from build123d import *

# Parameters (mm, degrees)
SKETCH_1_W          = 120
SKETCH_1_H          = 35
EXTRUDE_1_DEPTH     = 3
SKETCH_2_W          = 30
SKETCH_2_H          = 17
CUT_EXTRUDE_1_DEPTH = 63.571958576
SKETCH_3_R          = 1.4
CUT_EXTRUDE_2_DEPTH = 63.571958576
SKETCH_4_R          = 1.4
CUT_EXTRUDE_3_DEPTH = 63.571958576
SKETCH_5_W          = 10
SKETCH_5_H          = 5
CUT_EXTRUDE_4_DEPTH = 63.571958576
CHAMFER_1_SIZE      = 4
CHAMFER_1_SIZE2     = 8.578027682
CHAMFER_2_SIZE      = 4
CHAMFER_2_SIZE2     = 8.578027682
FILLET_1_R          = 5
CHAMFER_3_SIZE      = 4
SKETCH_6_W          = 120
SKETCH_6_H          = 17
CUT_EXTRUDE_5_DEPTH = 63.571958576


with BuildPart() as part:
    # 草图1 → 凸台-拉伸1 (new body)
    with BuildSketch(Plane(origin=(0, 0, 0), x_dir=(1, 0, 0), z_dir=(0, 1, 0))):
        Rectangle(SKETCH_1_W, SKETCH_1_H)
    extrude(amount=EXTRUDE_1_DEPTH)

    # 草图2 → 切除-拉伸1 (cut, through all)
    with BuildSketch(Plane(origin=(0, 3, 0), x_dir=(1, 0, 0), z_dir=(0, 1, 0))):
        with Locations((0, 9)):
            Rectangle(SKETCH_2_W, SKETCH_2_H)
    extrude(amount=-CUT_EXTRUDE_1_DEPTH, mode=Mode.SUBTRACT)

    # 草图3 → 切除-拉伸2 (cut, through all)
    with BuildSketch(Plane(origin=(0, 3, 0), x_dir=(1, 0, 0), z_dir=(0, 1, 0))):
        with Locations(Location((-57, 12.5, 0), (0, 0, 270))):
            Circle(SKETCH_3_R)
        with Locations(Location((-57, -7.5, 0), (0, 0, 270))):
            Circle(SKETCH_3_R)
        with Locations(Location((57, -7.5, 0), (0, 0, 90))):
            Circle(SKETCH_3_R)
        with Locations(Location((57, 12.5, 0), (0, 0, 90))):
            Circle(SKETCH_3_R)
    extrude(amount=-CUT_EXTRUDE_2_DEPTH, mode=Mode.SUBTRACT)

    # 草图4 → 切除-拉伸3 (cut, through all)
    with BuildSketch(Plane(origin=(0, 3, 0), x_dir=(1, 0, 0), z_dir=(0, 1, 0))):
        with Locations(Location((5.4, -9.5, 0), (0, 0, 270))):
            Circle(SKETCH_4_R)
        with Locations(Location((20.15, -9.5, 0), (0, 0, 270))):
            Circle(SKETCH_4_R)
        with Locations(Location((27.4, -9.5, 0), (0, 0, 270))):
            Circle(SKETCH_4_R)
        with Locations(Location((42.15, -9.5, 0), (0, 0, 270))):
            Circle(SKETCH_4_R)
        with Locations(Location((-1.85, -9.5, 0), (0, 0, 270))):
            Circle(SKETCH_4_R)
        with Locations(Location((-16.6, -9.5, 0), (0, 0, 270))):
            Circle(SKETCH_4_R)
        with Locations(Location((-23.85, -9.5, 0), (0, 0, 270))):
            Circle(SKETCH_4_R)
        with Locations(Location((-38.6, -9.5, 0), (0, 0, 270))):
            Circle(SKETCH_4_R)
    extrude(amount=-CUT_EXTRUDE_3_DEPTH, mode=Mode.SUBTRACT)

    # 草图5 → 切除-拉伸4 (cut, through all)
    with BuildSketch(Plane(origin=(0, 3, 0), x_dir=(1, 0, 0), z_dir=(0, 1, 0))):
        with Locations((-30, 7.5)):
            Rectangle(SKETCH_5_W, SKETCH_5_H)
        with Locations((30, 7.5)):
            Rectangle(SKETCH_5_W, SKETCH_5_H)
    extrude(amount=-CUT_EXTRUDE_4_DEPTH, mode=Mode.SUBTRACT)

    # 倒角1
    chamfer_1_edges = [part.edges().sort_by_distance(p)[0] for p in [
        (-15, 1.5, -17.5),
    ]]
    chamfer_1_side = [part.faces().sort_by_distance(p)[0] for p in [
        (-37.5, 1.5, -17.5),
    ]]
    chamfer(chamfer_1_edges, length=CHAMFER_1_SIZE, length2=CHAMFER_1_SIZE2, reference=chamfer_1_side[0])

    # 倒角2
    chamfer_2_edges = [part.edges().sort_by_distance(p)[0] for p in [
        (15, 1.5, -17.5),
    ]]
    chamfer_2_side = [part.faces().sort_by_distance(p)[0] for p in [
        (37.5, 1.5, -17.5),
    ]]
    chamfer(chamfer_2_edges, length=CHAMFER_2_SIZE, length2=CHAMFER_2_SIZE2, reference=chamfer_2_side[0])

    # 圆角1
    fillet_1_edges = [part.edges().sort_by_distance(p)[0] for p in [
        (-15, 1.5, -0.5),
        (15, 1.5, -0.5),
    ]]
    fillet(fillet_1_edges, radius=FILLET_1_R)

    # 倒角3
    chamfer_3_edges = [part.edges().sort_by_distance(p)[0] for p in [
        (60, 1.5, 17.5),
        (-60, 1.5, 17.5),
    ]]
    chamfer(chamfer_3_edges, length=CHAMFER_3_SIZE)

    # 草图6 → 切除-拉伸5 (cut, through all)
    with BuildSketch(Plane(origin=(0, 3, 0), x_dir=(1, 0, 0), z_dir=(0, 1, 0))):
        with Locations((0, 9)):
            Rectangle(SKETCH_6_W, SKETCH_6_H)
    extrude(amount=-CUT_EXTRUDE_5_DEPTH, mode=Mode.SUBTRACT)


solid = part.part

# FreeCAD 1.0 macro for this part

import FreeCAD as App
import Part
import Sketcher

V = App.Vector
Q = App.Units.Quantity


def edges_at(feature, points):
    """Names of the edges that pass closest to the given points."""
    edges = feature.Shape.Edges
    near = lambda p: min(range(len(edges)), key=lambda i: edges[i].distToShape(Part.Vertex(*p))[0])
    return sorted({f"Edge{near(p) + 1}" for p in points})


def add_polygon(sketch, points):
    """Adds a closed chain of lines whose ends are joined by coincident constraints."""
    first, n = sketch.GeometryCount, len(points)
    for a, b in zip(points, points[1:] + points[:1]):
        sketch.addGeometry(Part.LineSegment(App.Vector(*a, 0), App.Vector(*b, 0)), False)
    for i in range(n):
        sketch.addConstraint(Sketcher.Constraint("Coincident", first + i, 2, first + (i + 1) % n, 1))

doc = App.newDocument("Part")
params = doc.addObject("Spreadsheet::Sheet", "Params")
for row, (alias, value) in enumerate([
    ("sketch1_width", "120 mm"),
    ("sketch1_height", "35 mm"),
    ("pad1_length", "3 mm"),
    ("sketch2_width", "30 mm"),
    ("sketch2_height", "17 mm"),
    ("sketch3_diameter", "2.8 mm"),
    ("sketch4_diameter", "2.8 mm"),
    ("sketch5_width", "10 mm"),
    ("sketch5_height", "5 mm"),
    ("chamfer_size", "4 mm"),
    ("chamfer_size2", "8.578028 mm"),
    ("chamfer2_size", "4 mm"),
    ("chamfer2_size2", "8.578028 mm"),
    ("fillet_radius", "5 mm"),
    ("chamfer3_size", "4 mm"),
    ("sketch6_width", "120 mm"),
    ("sketch6_height", "17 mm"),
], start=1):
    params.set(f"A{row}", alias)
    params.set(f"B{row}", "=" + value)
    params.setAlias(f"B{row}", alias)

body = doc.addObject("PartDesign::Body", "Body")

# Sketch on XZ plane
sketch1 = doc.addObject("Sketcher::SketchObject", "Sketch")
body.addObject(sketch1)
sketch1.AttachmentSupport = (doc.XZ_Plane, [""])
sketch1.MapMode = "FlatFace"
add_polygon(sketch1, [(-60, -17.5), (-60, 17.5), (60, 17.5), (60, -17.5)])  # lines 0-3
sketch1.addConstraint([
    Sketcher.Constraint("Vertical", 0),
    Sketcher.Constraint("Horizontal", 1),
    Sketcher.Constraint("Vertical", 2),
    Sketcher.Constraint("Horizontal", 3),
    Sketcher.Constraint("Symmetric", 0, 2, 2, 2, -1, 1),
    Sketcher.Constraint("DistanceX", 1, 1, 1, 2, Q("120 mm")),
    Sketcher.Constraint("DistanceY", 0, 1, 0, 2, Q("35 mm")),
])
sketch1.setExpression("Constraints[9]", "Params.sketch1_width")
sketch1.setExpression("Constraints[10]", "Params.sketch1_height")
pad1 = doc.addObject("PartDesign::Pad", "Pad")
body.addObject(pad1)
pad1.Profile = sketch1
pad1.setExpression("Length", "Params.pad1_length")
pad1.Reversed = True

# Sketch on XZ plane
sketch2 = doc.addObject("Sketcher::SketchObject", "Sketch001")
body.addObject(sketch2)
sketch2.AttachmentSupport = (doc.XZ_Plane, [""])
sketch2.MapMode = "FlatFace"
sketch2.AttachmentOffset = App.Placement(V(0, 0, -3), App.Rotation())
add_polygon(sketch2, [(-15, -17.5), (-15, -0.5), (15, -0.5), (15, -17.5)])  # lines 0-3
sketch2.addConstraint([
    Sketcher.Constraint("Vertical", 0),
    Sketcher.Constraint("Horizontal", 1),
    Sketcher.Constraint("Vertical", 2),
    Sketcher.Constraint("Horizontal", 3),
    Sketcher.Constraint("DistanceX", 1, 1, 1, 2, Q("30 mm")),
    Sketcher.Constraint("DistanceY", 0, 1, 0, 2, Q("17 mm")),
    Sketcher.Constraint("DistanceX", 0, 2, -1, 1, Q("15 mm")),
    Sketcher.Constraint("DistanceY", 0, 2, -1, 1, Q("0.5 mm")),
])
sketch2.setExpression("Constraints[8]", "Params.sketch2_width")
sketch2.setExpression("Constraints[9]", "Params.sketch2_height")
pocket1 = doc.addObject("PartDesign::Pocket", "Pocket")
body.addObject(pocket1)
pocket1.Profile = sketch2
pocket1.Type = "ThroughAll"
pocket1.Reversed = True

# Sketch on XZ plane
sketch3 = doc.addObject("Sketcher::SketchObject", "Sketch002")
body.addObject(sketch3)
sketch3.AttachmentSupport = (doc.XZ_Plane, [""])
sketch3.MapMode = "FlatFace"
sketch3.AttachmentOffset = App.Placement(V(0, 0, -3), App.Rotation())
sketch3.addGeometry([
    Part.Circle(V(-57, -12.5, 0), V(0, 0, 1), 1.4),
    Part.Circle(V(-57, 7.5, 0), V(0, 0, 1), 1.4),
    Part.Circle(V(57, 7.5, 0), V(0, 0, 1), 1.4),
    Part.Circle(V(57, -12.5, 0), V(0, 0, 1), 1.4),
], False)
sketch3.addConstraint([
    Sketcher.Constraint("Equal", 0, 1),
    Sketcher.Constraint("Equal", 1, 2),
    Sketcher.Constraint("Equal", 2, 3),
    Sketcher.Constraint("Symmetric", 1, 3, 2, 3, -2),
    Sketcher.Constraint("Symmetric", 0, 3, 3, 3, -2),
    Sketcher.Constraint("Vertical", 0, 3, 1, 3),
    Sketcher.Constraint("Diameter", 0, Q("2.8 mm")),
    Sketcher.Constraint("DistanceX", 0, 3, -1, 1, Q("57 mm")),
    Sketcher.Constraint("DistanceY", 0, 3, 1, 3, Q("20 mm")),
    Sketcher.Constraint("DistanceY", 0, 3, -1, 1, Q("12.5 mm")),
])
sketch3.setExpression("Constraints[6]", "Params.sketch3_diameter")
pocket2 = doc.addObject("PartDesign::Pocket", "Pocket001")
body.addObject(pocket2)
pocket2.Profile = sketch3
pocket2.Type = "ThroughAll"
pocket2.Reversed = True

# Sketch on XZ plane
sketch4 = doc.addObject("Sketcher::SketchObject", "Sketch003")
body.addObject(sketch4)
sketch4.AttachmentSupport = (doc.XZ_Plane, [""])
sketch4.MapMode = "FlatFace"
sketch4.AttachmentOffset = App.Placement(V(0, 0, -3), App.Rotation())
sketch4.addGeometry([
    Part.Circle(V(5.4, 9.5, 0), V(0, 0, 1), 1.4),  # 0
    Part.Circle(V(20.15, 9.5, 0), V(0, 0, 1), 1.4),  # 1
    Part.Circle(V(27.4, 9.5, 0), V(0, 0, 1), 1.4),  # 2
    Part.Circle(V(42.15, 9.5, 0), V(0, 0, 1), 1.4),  # 3
    Part.Circle(V(-1.85, 9.5, 0), V(0, 0, 1), 1.4),  # 4
    Part.Circle(V(-16.6, 9.5, 0), V(0, 0, 1), 1.4),  # 5
    Part.Circle(V(-23.85, 9.5, 0), V(0, 0, 1), 1.4),  # 6
    Part.Circle(V(-38.6, 9.5, 0), V(0, 0, 1), 1.4),  # 7
], False)
sketch4.addConstraint([
    Sketcher.Constraint("Equal", 0, 1),
    Sketcher.Constraint("Equal", 1, 2),
    Sketcher.Constraint("Equal", 2, 3),
    Sketcher.Constraint("Equal", 3, 4),
    Sketcher.Constraint("Equal", 4, 5),
    Sketcher.Constraint("Equal", 5, 6),
    Sketcher.Constraint("Equal", 6, 7),
    Sketcher.Constraint("Horizontal", 0, 3, 1, 3),
    Sketcher.Constraint("Horizontal", 1, 3, 2, 3),
    Sketcher.Constraint("Horizontal", 2, 3, 3, 3),
    Sketcher.Constraint("Horizontal", 3, 3, 4, 3),
    Sketcher.Constraint("Horizontal", 4, 3, 5, 3),
    Sketcher.Constraint("Horizontal", 5, 3, 6, 3),
    Sketcher.Constraint("Horizontal", 6, 3, 7, 3),
    Sketcher.Constraint("Diameter", 0, Q("2.8 mm")),
    Sketcher.Constraint("DistanceX", 0, 3, 2, 3, Q("22 mm")),
    Sketcher.Constraint("DistanceX", 1, 3, 3, 3, Q("22 mm")),
    Sketcher.Constraint("DistanceX", 4, 3, 1, 3, Q("22 mm")),
    Sketcher.Constraint("DistanceX", 5, 3, 0, 3, Q("22 mm")),
    Sketcher.Constraint("DistanceX", 6, 3, 4, 3, Q("22 mm")),
    Sketcher.Constraint("DistanceX", 7, 3, 5, 3, Q("22 mm")),
    Sketcher.Constraint("DistanceX", -1, 1, 0, 3, Q("5.4 mm")),
    Sketcher.Constraint("DistanceY", -1, 1, 0, 3, Q("9.5 mm")),
    Sketcher.Constraint("DistanceX", -1, 1, 1, 3, Q("20.15 mm")),
])
sketch4.setExpression("Constraints[14]", "Params.sketch4_diameter")
pocket3 = doc.addObject("PartDesign::Pocket", "Pocket002")
body.addObject(pocket3)
pocket3.Profile = sketch4
pocket3.Type = "ThroughAll"
pocket3.Reversed = True

# Sketch on XZ plane
sketch5 = doc.addObject("Sketcher::SketchObject", "Sketch004")
body.addObject(sketch5)
sketch5.AttachmentSupport = (doc.XZ_Plane, [""])
sketch5.MapMode = "FlatFace"
sketch5.AttachmentOffset = App.Placement(V(0, 0, -3), App.Rotation())
add_polygon(sketch5, [(-35, -10), (-35, -5), (-25, -5), (-25, -10)])  # lines 0-3
add_polygon(sketch5, [(25, -10), (25, -5), (35, -5), (35, -10)])  # lines 4-7
sketch5.addConstraint([
    Sketcher.Constraint("Vertical", 0),
    Sketcher.Constraint("Horizontal", 1),
    Sketcher.Constraint("Vertical", 2),
    Sketcher.Constraint("Horizontal", 3),
    Sketcher.Constraint("Vertical", 4),
    Sketcher.Constraint("Horizontal", 5),
    Sketcher.Constraint("Vertical", 6),
    Sketcher.Constraint("Horizontal", 7),
    Sketcher.Constraint("Symmetric", 1, 2, 4, 2, -2),
    Sketcher.Constraint("Symmetric", 3, 2, 6, 2, -2),
    Sketcher.Constraint("DistanceX", 1, 1, 1, 2, Q("10 mm")),
    Sketcher.Constraint("DistanceY", 0, 1, 0, 2, Q("5 mm")),
    Sketcher.Constraint("DistanceX", 0, 2, -1, 1, Q("35 mm")),
    Sketcher.Constraint("DistanceY", 0, 2, -1, 1, Q("5 mm")),
])
sketch5.setExpression("Constraints[18]", "Params.sketch5_width")
sketch5.setExpression("Constraints[19]", "Params.sketch5_height")
pocket4 = doc.addObject("PartDesign::Pocket", "Pocket003")
body.addObject(pocket4)
pocket4.Profile = sketch5
pocket4.Type = "ThroughAll"
pocket4.Reversed = True
doc.recompute()

chamfer = doc.addObject("PartDesign::Chamfer", "Chamfer")
body.addObject(chamfer)
chamfer.Base = (pocket4, edges_at(pocket4, [(-15, 1.5, -17.5)]))
chamfer.ChamferType = "Two distances"
chamfer.setExpression("Size", "Params.chamfer_size")
chamfer.setExpression("Size2", "Params.chamfer_size2")
doc.recompute()

chamfer2 = doc.addObject("PartDesign::Chamfer", "Chamfer001")
body.addObject(chamfer2)
chamfer2.Base = (chamfer, edges_at(chamfer, [(15, 1.5, -17.5)]))
chamfer2.ChamferType = "Two distances"
chamfer2.setExpression("Size", "Params.chamfer2_size")
chamfer2.setExpression("Size2", "Params.chamfer2_size2")
doc.recompute()

fillet = doc.addObject("PartDesign::Fillet", "Fillet")
body.addObject(fillet)
fillet.Base = (chamfer2, edges_at(chamfer2, [(-15, 1.5, -0.5), (15, 1.5, -0.5)]))
fillet.setExpression("Radius", "Params.fillet_radius")
doc.recompute()

chamfer3 = doc.addObject("PartDesign::Chamfer", "Chamfer002")
body.addObject(chamfer3)
chamfer3.Base = (fillet, edges_at(fillet, [(60, 1.5, 17.5), (-60, 1.5, 17.5)]))
chamfer3.setExpression("Size", "Params.chamfer3_size")

# Sketch on XZ plane
sketch6 = doc.addObject("Sketcher::SketchObject", "Sketch005")
body.addObject(sketch6)
sketch6.AttachmentSupport = (doc.XZ_Plane, [""])
sketch6.MapMode = "FlatFace"
sketch6.AttachmentOffset = App.Placement(V(0, 0, -3), App.Rotation())
add_polygon(sketch6, [(-60, -17.5), (-60, -0.5), (60, -0.5), (60, -17.5)])  # lines 0-3
sketch6.addConstraint([
    Sketcher.Constraint("Vertical", 0),
    Sketcher.Constraint("Horizontal", 1),
    Sketcher.Constraint("Vertical", 2),
    Sketcher.Constraint("Horizontal", 3),
    Sketcher.Constraint("DistanceX", 1, 1, 1, 2, Q("120 mm")),
    Sketcher.Constraint("DistanceY", 0, 1, 0, 2, Q("17 mm")),
    Sketcher.Constraint("DistanceX", 0, 2, -1, 1, Q("60 mm")),
    Sketcher.Constraint("DistanceY", 0, 2, -1, 1, Q("0.5 mm")),
])
sketch6.setExpression("Constraints[8]", "Params.sketch6_width")
sketch6.setExpression("Constraints[9]", "Params.sketch6_height")
pocket5 = doc.addObject("PartDesign::Pocket", "Pocket004")
body.addObject(pocket5)
pocket5.Profile = sketch6
pocket5.Type = "ThroughAll"
pocket5.Reversed = True

doc.recompute()
